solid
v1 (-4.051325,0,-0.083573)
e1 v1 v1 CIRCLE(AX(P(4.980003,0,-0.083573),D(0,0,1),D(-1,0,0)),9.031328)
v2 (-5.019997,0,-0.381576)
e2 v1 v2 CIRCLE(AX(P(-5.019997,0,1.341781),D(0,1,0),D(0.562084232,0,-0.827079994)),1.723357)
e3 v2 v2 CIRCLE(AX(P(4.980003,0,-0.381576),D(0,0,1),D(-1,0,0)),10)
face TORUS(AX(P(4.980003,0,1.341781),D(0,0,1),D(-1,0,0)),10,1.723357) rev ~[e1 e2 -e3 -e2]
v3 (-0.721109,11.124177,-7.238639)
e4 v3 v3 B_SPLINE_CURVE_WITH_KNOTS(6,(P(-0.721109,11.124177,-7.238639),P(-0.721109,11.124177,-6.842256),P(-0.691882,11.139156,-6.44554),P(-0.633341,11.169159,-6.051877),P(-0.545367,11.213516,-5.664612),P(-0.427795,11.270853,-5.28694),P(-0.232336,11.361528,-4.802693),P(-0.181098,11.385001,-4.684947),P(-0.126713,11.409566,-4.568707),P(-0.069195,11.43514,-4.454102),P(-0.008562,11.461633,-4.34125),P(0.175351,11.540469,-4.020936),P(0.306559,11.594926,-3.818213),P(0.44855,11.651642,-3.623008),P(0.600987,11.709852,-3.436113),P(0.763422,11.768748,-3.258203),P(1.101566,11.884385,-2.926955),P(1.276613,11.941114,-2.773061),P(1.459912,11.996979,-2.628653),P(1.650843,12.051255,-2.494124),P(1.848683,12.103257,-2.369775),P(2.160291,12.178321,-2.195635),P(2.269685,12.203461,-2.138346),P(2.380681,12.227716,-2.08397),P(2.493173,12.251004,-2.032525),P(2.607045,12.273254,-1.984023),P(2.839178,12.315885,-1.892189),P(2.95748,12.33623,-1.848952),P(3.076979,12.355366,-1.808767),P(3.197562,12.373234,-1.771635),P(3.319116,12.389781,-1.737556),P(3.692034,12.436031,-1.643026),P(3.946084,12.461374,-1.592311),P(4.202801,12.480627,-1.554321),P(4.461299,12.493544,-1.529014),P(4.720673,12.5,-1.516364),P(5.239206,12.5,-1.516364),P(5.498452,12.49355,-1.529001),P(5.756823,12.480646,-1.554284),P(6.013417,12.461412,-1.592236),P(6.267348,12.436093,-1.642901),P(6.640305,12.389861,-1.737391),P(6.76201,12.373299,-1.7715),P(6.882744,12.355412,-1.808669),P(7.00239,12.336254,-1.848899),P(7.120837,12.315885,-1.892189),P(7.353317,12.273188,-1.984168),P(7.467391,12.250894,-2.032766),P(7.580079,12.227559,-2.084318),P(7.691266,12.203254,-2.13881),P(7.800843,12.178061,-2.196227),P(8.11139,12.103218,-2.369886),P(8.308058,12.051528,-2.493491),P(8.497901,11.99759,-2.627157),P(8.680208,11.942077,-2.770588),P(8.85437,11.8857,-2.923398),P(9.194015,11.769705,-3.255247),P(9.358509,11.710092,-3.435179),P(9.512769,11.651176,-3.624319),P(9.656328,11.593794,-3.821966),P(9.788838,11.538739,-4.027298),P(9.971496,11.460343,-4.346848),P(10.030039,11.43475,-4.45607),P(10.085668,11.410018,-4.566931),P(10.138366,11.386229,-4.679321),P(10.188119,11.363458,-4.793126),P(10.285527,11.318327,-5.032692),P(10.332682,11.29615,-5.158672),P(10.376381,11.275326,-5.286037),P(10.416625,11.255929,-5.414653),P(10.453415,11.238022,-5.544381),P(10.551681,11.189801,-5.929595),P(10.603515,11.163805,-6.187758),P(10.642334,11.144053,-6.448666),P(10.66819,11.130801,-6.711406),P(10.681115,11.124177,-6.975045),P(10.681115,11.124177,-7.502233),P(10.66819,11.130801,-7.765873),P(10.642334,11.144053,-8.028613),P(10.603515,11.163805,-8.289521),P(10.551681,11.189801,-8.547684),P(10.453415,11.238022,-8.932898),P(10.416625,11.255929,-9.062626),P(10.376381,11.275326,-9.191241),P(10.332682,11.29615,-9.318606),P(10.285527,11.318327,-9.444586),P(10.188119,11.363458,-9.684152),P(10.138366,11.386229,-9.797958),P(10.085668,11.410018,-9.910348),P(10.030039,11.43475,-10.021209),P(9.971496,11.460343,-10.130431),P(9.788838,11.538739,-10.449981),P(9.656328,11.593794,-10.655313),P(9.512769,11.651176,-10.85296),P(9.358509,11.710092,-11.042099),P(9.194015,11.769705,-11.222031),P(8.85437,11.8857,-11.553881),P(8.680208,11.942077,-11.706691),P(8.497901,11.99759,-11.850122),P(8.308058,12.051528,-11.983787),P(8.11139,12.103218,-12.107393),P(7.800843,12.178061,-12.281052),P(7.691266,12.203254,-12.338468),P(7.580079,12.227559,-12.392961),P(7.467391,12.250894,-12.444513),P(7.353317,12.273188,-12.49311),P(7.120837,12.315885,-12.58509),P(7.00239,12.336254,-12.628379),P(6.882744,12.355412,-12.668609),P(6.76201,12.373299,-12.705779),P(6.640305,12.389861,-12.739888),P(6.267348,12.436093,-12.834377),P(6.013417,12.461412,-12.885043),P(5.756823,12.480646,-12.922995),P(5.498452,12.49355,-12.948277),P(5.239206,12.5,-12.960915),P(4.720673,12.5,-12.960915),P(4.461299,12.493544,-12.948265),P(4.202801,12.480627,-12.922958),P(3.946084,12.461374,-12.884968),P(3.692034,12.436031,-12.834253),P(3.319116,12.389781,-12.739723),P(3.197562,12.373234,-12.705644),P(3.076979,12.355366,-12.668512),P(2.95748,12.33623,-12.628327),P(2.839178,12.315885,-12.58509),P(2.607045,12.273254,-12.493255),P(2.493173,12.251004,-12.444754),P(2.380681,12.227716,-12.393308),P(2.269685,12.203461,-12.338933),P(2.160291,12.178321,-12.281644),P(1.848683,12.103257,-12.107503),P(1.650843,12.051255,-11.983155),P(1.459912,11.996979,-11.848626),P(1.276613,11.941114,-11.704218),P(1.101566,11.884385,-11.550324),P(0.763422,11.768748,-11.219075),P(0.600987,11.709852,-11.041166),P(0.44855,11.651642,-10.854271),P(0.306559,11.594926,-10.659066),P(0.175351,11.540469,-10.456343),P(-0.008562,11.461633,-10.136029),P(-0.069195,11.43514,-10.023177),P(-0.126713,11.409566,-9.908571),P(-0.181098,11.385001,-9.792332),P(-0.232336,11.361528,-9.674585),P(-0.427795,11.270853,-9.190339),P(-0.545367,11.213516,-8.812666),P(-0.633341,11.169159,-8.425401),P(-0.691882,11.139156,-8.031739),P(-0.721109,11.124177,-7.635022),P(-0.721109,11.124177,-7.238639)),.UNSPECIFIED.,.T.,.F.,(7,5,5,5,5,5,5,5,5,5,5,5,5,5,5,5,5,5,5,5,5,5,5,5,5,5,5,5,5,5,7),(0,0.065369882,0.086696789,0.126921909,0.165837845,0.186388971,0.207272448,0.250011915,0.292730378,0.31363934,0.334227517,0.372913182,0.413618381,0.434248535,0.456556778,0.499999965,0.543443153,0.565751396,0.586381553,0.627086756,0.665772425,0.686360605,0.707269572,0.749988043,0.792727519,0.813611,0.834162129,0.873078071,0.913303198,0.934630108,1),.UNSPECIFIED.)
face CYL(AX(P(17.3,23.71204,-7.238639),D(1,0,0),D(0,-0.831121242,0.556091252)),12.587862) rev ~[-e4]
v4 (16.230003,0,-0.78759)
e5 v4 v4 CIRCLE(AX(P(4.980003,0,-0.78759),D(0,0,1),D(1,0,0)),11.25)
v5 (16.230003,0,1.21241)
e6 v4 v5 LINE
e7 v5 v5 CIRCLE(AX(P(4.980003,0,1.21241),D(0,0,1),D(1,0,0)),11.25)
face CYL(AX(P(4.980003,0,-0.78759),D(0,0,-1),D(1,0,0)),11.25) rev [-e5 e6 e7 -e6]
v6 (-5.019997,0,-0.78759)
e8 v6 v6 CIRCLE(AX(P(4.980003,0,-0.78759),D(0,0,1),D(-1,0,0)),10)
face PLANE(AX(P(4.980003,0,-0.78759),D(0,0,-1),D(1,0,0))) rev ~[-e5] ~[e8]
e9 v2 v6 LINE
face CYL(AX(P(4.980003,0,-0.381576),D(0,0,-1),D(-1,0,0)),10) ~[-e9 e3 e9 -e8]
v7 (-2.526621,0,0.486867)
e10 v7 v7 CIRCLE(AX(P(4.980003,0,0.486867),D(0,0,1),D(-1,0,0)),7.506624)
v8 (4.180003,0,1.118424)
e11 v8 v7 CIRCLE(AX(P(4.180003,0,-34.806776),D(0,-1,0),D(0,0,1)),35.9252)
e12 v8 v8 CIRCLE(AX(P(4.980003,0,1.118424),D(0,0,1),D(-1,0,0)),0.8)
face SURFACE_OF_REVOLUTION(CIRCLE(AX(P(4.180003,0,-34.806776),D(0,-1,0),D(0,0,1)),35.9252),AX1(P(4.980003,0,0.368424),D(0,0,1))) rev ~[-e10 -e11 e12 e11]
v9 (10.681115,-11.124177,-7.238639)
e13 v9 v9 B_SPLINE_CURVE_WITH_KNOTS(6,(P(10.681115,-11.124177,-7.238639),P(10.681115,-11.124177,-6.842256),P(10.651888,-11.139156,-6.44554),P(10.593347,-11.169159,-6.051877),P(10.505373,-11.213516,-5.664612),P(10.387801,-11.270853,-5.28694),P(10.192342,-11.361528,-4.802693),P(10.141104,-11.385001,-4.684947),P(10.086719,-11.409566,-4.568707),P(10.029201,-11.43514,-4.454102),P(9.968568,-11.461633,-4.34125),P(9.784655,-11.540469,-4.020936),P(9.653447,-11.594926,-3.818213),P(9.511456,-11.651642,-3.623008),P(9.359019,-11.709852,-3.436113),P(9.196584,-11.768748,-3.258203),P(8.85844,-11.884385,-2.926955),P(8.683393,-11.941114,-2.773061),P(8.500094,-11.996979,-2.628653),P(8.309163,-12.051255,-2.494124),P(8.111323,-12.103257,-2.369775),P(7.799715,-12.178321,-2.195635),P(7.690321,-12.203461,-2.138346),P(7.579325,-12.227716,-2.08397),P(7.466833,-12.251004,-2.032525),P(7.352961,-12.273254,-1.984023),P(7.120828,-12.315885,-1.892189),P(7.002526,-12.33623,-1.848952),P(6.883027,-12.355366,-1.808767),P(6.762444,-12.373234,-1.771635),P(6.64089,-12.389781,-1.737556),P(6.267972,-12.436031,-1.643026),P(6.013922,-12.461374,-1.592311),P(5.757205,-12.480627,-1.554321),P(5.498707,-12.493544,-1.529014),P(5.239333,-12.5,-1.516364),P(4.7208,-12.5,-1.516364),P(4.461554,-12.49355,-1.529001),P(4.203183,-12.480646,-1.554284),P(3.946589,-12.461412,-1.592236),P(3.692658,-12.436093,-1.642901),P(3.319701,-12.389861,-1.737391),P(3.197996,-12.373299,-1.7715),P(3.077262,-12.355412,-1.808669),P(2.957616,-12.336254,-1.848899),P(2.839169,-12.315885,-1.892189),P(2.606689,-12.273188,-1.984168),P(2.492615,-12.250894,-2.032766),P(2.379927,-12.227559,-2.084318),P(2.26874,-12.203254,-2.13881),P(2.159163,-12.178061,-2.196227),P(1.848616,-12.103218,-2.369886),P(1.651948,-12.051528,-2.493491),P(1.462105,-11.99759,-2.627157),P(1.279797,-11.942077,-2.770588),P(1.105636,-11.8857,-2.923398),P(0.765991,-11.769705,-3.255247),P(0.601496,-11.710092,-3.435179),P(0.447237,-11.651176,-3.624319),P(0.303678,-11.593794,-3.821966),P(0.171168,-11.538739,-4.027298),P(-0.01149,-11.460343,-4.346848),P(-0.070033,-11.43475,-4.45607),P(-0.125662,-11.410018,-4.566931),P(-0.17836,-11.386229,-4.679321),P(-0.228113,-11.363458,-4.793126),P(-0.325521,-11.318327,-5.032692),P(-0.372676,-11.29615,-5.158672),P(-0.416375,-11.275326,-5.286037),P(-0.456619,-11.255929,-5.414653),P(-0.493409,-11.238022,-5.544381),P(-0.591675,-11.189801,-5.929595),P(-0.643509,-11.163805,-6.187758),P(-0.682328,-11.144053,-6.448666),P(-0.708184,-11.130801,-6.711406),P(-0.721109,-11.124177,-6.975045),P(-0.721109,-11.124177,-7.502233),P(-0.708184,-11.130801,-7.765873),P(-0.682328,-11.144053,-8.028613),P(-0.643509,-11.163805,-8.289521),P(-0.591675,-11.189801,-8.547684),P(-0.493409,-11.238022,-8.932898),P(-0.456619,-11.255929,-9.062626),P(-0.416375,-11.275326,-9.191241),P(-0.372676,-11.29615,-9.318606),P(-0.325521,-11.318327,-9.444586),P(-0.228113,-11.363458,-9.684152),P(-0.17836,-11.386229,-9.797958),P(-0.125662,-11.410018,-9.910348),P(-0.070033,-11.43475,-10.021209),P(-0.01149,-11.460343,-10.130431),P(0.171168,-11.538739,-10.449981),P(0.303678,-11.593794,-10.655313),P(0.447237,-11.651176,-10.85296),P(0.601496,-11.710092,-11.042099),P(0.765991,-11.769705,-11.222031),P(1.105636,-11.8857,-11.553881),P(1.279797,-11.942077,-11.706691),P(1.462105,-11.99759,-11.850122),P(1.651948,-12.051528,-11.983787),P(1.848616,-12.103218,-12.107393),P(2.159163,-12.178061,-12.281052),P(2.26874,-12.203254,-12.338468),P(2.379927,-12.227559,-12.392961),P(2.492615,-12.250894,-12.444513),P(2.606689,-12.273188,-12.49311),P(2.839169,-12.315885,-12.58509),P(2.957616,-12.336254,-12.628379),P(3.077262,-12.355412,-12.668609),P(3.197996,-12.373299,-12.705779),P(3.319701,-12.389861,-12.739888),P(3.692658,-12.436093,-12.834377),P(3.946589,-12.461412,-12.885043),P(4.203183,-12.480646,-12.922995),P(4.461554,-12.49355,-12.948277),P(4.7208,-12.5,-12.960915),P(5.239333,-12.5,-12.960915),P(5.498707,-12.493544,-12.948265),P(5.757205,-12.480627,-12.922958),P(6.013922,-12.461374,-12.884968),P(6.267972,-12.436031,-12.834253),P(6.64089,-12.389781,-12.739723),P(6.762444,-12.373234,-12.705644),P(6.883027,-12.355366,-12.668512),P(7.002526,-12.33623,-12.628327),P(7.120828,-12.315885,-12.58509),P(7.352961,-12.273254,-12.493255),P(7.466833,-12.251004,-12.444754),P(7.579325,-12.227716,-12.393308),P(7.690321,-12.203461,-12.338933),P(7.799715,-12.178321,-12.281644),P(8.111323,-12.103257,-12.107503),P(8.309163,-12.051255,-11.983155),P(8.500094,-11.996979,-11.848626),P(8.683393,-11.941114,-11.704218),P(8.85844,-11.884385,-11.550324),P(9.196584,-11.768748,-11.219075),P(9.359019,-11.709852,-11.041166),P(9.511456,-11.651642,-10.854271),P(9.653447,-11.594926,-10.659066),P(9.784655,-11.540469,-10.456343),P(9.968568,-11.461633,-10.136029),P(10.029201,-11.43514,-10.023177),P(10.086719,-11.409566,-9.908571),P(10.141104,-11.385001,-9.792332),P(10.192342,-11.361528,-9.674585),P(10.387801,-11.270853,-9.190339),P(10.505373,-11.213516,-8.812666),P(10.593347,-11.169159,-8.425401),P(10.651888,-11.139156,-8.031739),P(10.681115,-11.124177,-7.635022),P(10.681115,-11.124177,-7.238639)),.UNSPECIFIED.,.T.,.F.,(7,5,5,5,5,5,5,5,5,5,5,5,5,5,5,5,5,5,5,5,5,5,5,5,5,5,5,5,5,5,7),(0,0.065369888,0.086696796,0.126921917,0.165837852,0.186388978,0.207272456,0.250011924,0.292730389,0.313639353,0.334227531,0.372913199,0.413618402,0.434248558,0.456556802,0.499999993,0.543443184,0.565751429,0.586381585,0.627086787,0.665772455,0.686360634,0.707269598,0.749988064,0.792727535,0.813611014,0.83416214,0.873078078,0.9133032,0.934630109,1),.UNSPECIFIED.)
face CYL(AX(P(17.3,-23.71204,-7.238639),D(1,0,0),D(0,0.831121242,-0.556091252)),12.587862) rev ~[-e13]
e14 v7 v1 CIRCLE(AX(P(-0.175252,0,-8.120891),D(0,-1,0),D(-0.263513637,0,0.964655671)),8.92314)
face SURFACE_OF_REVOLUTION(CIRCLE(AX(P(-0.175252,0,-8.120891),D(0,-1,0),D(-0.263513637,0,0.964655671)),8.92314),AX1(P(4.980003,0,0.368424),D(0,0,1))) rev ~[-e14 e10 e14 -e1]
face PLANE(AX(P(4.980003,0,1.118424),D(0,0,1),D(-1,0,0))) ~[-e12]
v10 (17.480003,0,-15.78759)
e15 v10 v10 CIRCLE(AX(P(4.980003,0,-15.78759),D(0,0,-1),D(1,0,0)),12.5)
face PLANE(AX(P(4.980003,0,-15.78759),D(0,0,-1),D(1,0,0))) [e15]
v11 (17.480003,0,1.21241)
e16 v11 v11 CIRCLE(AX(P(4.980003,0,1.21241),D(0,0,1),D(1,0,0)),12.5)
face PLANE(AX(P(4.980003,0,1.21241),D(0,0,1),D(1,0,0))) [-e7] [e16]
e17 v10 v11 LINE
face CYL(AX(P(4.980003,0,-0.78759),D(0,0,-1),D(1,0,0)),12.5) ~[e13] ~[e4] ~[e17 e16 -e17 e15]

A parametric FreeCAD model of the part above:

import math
import FreeCAD as App
import Part
import Sketcher
from FreeCAD import Vector
Q = App.Units.Quantity

doc = App.newDocument("Part")
body = doc.addObject("PartDesign::Body", "Body")

# Sketch on XZ plane
sketch1 = body.newObject("Sketcher::SketchObject", "Sketch")
sketch1.AttachmentSupport = (doc.getObject("XZ_Plane"), [""])
sketch1.MapMode = "FlatFace"
sketch1.addGeometry(Part.LineSegment(Vector(4.98, -0.79, 0), Vector(4.98, 1.12, 0)), False)
sketch1.addGeometry(Part.LineSegment(Vector(4.98, 1.12, 0), Vector(4.18, 1.12, 0)), False)
sketch1.addGeometry(Part.ArcOfCircle(Part.Circle(Vector(4.18, -34.81, 0), Vector(0, 0, 1), 35.93), math.radians(90), math.radians(100.76)), False)
sketch1.addGeometry(Part.ArcOfCircle(Part.Circle(Vector(-0.18, -8.12, 0), Vector(0, 0, 1), 8.92), math.radians(105.28), math.radians(115.75)), False)
sketch1.addGeometry(Part.ArcOfCircle(Part.Circle(Vector(-5.02, 1.34, 0), Vector(0, 0, 1), 1.72), math.radians(-90), math.radians(-56)), False)
sketch1.addGeometry(Part.LineSegment(Vector(-5.02, -0.38, 0), Vector(-5.02, -0.79, 0)), False)
sketch1.addGeometry(Part.LineSegment(Vector(-5.02, -0.79, 0), Vector(4.98, -0.79, 0)), False)
sketch1.addGeometry(Part.LineSegment(Vector(4.98, -34.81, 0), Vector(4.98, 1.34, 0)), True)  # axis
sketch1.addConstraint(Sketcher.Constraint("Coincident", 0, 2, 1, 1))
sketch1.addConstraint(Sketcher.Constraint("Tangent", 1, 2, 2, 1))
sketch1.addConstraint(Sketcher.Constraint("Coincident", 2, 2, 3, 1))
sketch1.addConstraint(Sketcher.Constraint("Coincident", 3, 2, 4, 2))
sketch1.addConstraint(Sketcher.Constraint("Coincident", 4, 1, 5, 1))
sketch1.addConstraint(Sketcher.Constraint("Coincident", 5, 2, 6, 1))
sketch1.addConstraint(Sketcher.Constraint("Coincident", 6, 2, 0, 1))
sketch1.addConstraint(Sketcher.Constraint("Vertical", 0))
sketch1.addConstraint(Sketcher.Constraint("Horizontal", 1))
sketch1.addConstraint(Sketcher.Constraint("Vertical", 5))
sketch1.addConstraint(Sketcher.Constraint("Horizontal", 6))
sketch1.addConstraint(Sketcher.Constraint("Vertical", 7))
sketch1.addConstraint(Sketcher.Constraint("Horizontal", 2, 3, 7, 1))
sketch1.addConstraint(Sketcher.Constraint("Horizontal", 4, 3, 7, 2))
sketch1.addConstraint(Sketcher.Constraint("Vertical", 6, 2, 7, 1))
sketch1.addConstraint(Sketcher.Constraint("DistanceX", 6, 1, 6, 2, Q("10 mm")))
sketch1.addConstraint(Sketcher.Constraint("DistanceX", 1, 2, 1, 1, Q("0.8 mm")))
sketch1.addConstraint(Sketcher.Constraint("DistanceX", 4, 3, 0, 2, Q("10 mm")))
sketch1.addConstraint(Sketcher.Constraint("Radius", 2, Q("35.9252 mm")))
sketch1.addConstraint(Sketcher.Constraint("DistanceY", 4, 1, 1, 2, Q("1.5 mm")))
sketch1.addConstraint(Sketcher.Constraint("Radius", 3, Q("8.92314 mm")))
sketch1.addConstraint(Sketcher.Constraint("Radius", 4, Q("1.723357 mm")))
sketch1.addConstraint(Sketcher.Constraint("DistanceY", 3, 3, 5, 2, Q("7.333301 mm")))
sketch1.addConstraint(Sketcher.Constraint("DistanceY", 0, 1, 0, 2, Q("1.906015 mm")))
sketch1.addConstraint(Sketcher.Constraint("DistanceX", 3, 3, -1, 1, Q("0.175252 mm")))
sketch1.addConstraint(Sketcher.Constraint("DistanceY", 3, 3, -1, 1, Q("8.120891 mm")))
sketch1.addConstraint(Sketcher.Constraint("DistanceX", 2, 2, -1, 1, Q("2.526621 mm")))
revolution = body.newObject("PartDesign::Revolution", "Revolution")
revolution.Profile = sketch1
revolution.ReferenceAxis = (sketch1, ["Axis0"])
revolution.Angle = 360

# Sketch on XY plane
sketch2 = body.newObject("Sketcher::SketchObject", "Sketch001")
sketch2.AttachmentSupport = (doc.getObject("XY_Plane"), [""])
sketch2.MapMode = "FlatFace"
sketch2.AttachmentOffset = App.Placement(Vector(0, 0, -0.78759), App.Rotation())
sketch2.addGeometry(Part.Circle(Vector(5, 0, 0), Vector(0, 0, 1), 12), False)
sketch2.addConstraint(Sketcher.Constraint("PointOnObject", 0, 3, -1))
sketch2.addConstraint(Sketcher.Constraint("Diameter", 0, Q("25 mm")))
sketch2.addConstraint(Sketcher.Constraint("DistanceX", -1, 1, 0, 3, Q("4.980003 mm")))
pad1 = body.newObject("PartDesign::Pad", "Pad")
pad1.Profile = sketch2
pad1.Length = 15
pad1.Reversed = True

# Sketch on XY plane
sketch3 = body.newObject("Sketcher::SketchObject", "Sketch002")
sketch3.AttachmentSupport = (doc.getObject("XY_Plane"), [""])
sketch3.MapMode = "FlatFace"
sketch3.AttachmentOffset = App.Placement(Vector(0, 0, -0.78759), App.Rotation())
sketch3.addGeometry(Part.Circle(Vector(5, 0, 0), Vector(0, 0, 1), 12), False)
sketch3.addGeometry(Part.Circle(Vector(5, 0, 0), Vector(0, 0, 1), 11), False)
sketch3.addConstraint(Sketcher.Constraint("Coincident", 1, 3, 0, 3))
sketch3.addConstraint(Sketcher.Constraint("PointOnObject", 0, 3, -1))
sketch3.addConstraint(Sketcher.Constraint("Diameter", 0, Q("25 mm")))
sketch3.addConstraint(Sketcher.Constraint("Diameter", 1, Q("22.5 mm")))
sketch3.addConstraint(Sketcher.Constraint("DistanceX", -1, 1, 0, 3, Q("4.980003 mm")))
pad2 = body.newObject("PartDesign::Pad", "Pad001")
pad2.Profile = sketch3
pad2.Length = 2

# Sketch on YZ plane
sketch4 = body.newObject("Sketcher::SketchObject", "Sketch003")
sketch4.AttachmentSupport = (doc.getObject("YZ_Plane"), [""])
sketch4.MapMode = "FlatFace"
sketch4.AttachmentOffset = App.Placement(Vector(0, 0, 17.3), App.Rotation())
sketch4.addGeometry(Part.LineSegment(Vector(-13, 0, 0), Vector(-13, -14, 0)), False)
sketch4.addGeometry(Part.ArcOfCircle(Part.Circle(Vector(-24, -7, 0), Vector(0, 0, 1), 13), math.radians(-34), math.radians(34)), False)
sketch4.addGeometry(Part.ArcOfCircle(Part.Circle(Vector(24, -7, 0), Vector(0, 0, 1), 13), math.radians(146), math.radians(214)), False)
sketch4.addGeometry(Part.LineSegment(Vector(13, -14, 0), Vector(13, 0, 0)), False)
sketch4.addConstraint(Sketcher.Constraint("Coincident", 0, 1, 1, 2))
sketch4.addConstraint(Sketcher.Constraint("Coincident", 1, 1, 0, 2))
sketch4.addConstraint(Sketcher.Constraint("Coincident", 2, 1, 3, 2))
sketch4.addConstraint(Sketcher.Constraint("Coincident", 3, 1, 2, 2))
sketch4.addConstraint(Sketcher.Constraint("Vertical", 0))
sketch4.addConstraint(Sketcher.Constraint("Vertical", 3))
sketch4.addConstraint(Sketcher.Constraint("Equal", 1, 2))
sketch4.addConstraint(Sketcher.Constraint("Symmetric", 1, 3, 2, 3, -2))
sketch4.addConstraint(Sketcher.Constraint("Horizontal", 0, 1, 2, 1))
sketch4.addConstraint(Sketcher.Constraint("DistanceY", 0, 2, 0, 1, Q("14 mm")))
sketch4.addConstraint(Sketcher.Constraint("DistanceX", 0, 1, 2, 1, Q("26.5 mm")))
sketch4.addConstraint(Sketcher.Constraint("Radius", 1, Q("12.587862 mm")))
sketch4.addConstraint(Sketcher.Constraint("DistanceY", 1, 3, -1, 1, Q("7.238639 mm")))
pocket1 = body.newObject("PartDesign::Pocket", "Pocket")
pocket1.Profile = sketch4
pocket1.Length = 50

doc.recompute()
